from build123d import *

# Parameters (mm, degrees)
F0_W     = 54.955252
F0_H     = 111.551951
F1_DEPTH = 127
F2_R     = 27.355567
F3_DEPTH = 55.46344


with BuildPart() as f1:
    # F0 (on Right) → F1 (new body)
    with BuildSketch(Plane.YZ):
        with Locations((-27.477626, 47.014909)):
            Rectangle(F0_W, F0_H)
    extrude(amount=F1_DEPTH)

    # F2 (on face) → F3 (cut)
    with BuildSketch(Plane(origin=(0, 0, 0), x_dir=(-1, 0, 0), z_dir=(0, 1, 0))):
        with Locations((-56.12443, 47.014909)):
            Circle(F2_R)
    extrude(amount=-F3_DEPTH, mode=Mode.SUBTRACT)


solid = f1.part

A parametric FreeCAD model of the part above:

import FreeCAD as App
import Part
import Sketcher

V = App.Vector
Q = App.Units.Quantity

doc = App.newDocument("Part")
body = doc.addObject("PartDesign::Body", "Body")

# Sketch on YZ plane
sketch1 = doc.addObject("Sketcher::SketchObject", "Sketch")
body.addObject(sketch1)
sketch1.AttachmentSupport = (doc.YZ_Plane, [""])
sketch1.MapMode = "FlatFace"
sketch1.addGeometry(Part.LineSegment(V(-55, 103, 0), V(-55, -9, 0)), False)
sketch1.addGeometry(Part.LineSegment(V(-55, -9, 0), V(0, -9, 0)), False)
sketch1.addGeometry(Part.LineSegment(V(0, -9, 0), V(0, 103, 0)), False)
sketch1.addGeometry(Part.LineSegment(V(0, 103, 0), V(-55, 103, 0)), False)
sketch1.addConstraint(Sketcher.Constraint("Coincident", 0, 2, 1, 1))
sketch1.addConstraint(Sketcher.Constraint("Coincident", 1, 2, 2, 1))
sketch1.addConstraint(Sketcher.Constraint("Coincident", 2, 2, 3, 1))
sketch1.addConstraint(Sketcher.Constraint("Coincident", 3, 2, 0, 1))
sketch1.addConstraint(Sketcher.Constraint("Vertical", 0))
sketch1.addConstraint(Sketcher.Constraint("Horizontal", 1))
sketch1.addConstraint(Sketcher.Constraint("Vertical", 2))
sketch1.addConstraint(Sketcher.Constraint("Horizontal", 3))
sketch1.addConstraint(Sketcher.Constraint("PointOnObject", 1, 2, -2))
sketch1.addConstraint(Sketcher.Constraint("DistanceY", 0, 2, 0, 1, Q("111.551951 mm")))
sketch1.addConstraint(Sketcher.Constraint("DistanceX", 1, 1, 1, 2, Q("54.955252 mm")))
sketch1.addConstraint(Sketcher.Constraint("DistanceY", 0, 2, -1, 1, Q("8.761067 mm")))
pad1 = doc.addObject("PartDesign::Pad", "Pad")
body.addObject(pad1)
pad1.Profile = sketch1
pad1.Length = Q("5 in")

# Sketch on XZ plane
sketch2 = doc.addObject("Sketcher::SketchObject", "Sketch001")
body.addObject(sketch2)
sketch2.AttachmentSupport = (doc.XZ_Plane, [""])
sketch2.MapMode = "FlatFace"
sketch2.addGeometry(Part.Circle(V(56, 47, 0), V(0, 0, 1), 27), False)
sketch2.addConstraint(Sketcher.Constraint("Diameter", 0, Q("54.711134 mm")))
sketch2.addConstraint(Sketcher.Constraint("DistanceX", -1, 1, 0, 3, Q("56.12443 mm")))
sketch2.addConstraint(Sketcher.Constraint("DistanceY", -1, 1, 0, 3, Q("47.014909 mm")))
pocket1 = doc.addObject("PartDesign::Pocket", "Pocket")
body.addObject(pocket1)
pocket1.Profile = sketch2
pocket1.Length = Q("2.1836 in")
pocket1.Reversed = True

doc.recompute()
